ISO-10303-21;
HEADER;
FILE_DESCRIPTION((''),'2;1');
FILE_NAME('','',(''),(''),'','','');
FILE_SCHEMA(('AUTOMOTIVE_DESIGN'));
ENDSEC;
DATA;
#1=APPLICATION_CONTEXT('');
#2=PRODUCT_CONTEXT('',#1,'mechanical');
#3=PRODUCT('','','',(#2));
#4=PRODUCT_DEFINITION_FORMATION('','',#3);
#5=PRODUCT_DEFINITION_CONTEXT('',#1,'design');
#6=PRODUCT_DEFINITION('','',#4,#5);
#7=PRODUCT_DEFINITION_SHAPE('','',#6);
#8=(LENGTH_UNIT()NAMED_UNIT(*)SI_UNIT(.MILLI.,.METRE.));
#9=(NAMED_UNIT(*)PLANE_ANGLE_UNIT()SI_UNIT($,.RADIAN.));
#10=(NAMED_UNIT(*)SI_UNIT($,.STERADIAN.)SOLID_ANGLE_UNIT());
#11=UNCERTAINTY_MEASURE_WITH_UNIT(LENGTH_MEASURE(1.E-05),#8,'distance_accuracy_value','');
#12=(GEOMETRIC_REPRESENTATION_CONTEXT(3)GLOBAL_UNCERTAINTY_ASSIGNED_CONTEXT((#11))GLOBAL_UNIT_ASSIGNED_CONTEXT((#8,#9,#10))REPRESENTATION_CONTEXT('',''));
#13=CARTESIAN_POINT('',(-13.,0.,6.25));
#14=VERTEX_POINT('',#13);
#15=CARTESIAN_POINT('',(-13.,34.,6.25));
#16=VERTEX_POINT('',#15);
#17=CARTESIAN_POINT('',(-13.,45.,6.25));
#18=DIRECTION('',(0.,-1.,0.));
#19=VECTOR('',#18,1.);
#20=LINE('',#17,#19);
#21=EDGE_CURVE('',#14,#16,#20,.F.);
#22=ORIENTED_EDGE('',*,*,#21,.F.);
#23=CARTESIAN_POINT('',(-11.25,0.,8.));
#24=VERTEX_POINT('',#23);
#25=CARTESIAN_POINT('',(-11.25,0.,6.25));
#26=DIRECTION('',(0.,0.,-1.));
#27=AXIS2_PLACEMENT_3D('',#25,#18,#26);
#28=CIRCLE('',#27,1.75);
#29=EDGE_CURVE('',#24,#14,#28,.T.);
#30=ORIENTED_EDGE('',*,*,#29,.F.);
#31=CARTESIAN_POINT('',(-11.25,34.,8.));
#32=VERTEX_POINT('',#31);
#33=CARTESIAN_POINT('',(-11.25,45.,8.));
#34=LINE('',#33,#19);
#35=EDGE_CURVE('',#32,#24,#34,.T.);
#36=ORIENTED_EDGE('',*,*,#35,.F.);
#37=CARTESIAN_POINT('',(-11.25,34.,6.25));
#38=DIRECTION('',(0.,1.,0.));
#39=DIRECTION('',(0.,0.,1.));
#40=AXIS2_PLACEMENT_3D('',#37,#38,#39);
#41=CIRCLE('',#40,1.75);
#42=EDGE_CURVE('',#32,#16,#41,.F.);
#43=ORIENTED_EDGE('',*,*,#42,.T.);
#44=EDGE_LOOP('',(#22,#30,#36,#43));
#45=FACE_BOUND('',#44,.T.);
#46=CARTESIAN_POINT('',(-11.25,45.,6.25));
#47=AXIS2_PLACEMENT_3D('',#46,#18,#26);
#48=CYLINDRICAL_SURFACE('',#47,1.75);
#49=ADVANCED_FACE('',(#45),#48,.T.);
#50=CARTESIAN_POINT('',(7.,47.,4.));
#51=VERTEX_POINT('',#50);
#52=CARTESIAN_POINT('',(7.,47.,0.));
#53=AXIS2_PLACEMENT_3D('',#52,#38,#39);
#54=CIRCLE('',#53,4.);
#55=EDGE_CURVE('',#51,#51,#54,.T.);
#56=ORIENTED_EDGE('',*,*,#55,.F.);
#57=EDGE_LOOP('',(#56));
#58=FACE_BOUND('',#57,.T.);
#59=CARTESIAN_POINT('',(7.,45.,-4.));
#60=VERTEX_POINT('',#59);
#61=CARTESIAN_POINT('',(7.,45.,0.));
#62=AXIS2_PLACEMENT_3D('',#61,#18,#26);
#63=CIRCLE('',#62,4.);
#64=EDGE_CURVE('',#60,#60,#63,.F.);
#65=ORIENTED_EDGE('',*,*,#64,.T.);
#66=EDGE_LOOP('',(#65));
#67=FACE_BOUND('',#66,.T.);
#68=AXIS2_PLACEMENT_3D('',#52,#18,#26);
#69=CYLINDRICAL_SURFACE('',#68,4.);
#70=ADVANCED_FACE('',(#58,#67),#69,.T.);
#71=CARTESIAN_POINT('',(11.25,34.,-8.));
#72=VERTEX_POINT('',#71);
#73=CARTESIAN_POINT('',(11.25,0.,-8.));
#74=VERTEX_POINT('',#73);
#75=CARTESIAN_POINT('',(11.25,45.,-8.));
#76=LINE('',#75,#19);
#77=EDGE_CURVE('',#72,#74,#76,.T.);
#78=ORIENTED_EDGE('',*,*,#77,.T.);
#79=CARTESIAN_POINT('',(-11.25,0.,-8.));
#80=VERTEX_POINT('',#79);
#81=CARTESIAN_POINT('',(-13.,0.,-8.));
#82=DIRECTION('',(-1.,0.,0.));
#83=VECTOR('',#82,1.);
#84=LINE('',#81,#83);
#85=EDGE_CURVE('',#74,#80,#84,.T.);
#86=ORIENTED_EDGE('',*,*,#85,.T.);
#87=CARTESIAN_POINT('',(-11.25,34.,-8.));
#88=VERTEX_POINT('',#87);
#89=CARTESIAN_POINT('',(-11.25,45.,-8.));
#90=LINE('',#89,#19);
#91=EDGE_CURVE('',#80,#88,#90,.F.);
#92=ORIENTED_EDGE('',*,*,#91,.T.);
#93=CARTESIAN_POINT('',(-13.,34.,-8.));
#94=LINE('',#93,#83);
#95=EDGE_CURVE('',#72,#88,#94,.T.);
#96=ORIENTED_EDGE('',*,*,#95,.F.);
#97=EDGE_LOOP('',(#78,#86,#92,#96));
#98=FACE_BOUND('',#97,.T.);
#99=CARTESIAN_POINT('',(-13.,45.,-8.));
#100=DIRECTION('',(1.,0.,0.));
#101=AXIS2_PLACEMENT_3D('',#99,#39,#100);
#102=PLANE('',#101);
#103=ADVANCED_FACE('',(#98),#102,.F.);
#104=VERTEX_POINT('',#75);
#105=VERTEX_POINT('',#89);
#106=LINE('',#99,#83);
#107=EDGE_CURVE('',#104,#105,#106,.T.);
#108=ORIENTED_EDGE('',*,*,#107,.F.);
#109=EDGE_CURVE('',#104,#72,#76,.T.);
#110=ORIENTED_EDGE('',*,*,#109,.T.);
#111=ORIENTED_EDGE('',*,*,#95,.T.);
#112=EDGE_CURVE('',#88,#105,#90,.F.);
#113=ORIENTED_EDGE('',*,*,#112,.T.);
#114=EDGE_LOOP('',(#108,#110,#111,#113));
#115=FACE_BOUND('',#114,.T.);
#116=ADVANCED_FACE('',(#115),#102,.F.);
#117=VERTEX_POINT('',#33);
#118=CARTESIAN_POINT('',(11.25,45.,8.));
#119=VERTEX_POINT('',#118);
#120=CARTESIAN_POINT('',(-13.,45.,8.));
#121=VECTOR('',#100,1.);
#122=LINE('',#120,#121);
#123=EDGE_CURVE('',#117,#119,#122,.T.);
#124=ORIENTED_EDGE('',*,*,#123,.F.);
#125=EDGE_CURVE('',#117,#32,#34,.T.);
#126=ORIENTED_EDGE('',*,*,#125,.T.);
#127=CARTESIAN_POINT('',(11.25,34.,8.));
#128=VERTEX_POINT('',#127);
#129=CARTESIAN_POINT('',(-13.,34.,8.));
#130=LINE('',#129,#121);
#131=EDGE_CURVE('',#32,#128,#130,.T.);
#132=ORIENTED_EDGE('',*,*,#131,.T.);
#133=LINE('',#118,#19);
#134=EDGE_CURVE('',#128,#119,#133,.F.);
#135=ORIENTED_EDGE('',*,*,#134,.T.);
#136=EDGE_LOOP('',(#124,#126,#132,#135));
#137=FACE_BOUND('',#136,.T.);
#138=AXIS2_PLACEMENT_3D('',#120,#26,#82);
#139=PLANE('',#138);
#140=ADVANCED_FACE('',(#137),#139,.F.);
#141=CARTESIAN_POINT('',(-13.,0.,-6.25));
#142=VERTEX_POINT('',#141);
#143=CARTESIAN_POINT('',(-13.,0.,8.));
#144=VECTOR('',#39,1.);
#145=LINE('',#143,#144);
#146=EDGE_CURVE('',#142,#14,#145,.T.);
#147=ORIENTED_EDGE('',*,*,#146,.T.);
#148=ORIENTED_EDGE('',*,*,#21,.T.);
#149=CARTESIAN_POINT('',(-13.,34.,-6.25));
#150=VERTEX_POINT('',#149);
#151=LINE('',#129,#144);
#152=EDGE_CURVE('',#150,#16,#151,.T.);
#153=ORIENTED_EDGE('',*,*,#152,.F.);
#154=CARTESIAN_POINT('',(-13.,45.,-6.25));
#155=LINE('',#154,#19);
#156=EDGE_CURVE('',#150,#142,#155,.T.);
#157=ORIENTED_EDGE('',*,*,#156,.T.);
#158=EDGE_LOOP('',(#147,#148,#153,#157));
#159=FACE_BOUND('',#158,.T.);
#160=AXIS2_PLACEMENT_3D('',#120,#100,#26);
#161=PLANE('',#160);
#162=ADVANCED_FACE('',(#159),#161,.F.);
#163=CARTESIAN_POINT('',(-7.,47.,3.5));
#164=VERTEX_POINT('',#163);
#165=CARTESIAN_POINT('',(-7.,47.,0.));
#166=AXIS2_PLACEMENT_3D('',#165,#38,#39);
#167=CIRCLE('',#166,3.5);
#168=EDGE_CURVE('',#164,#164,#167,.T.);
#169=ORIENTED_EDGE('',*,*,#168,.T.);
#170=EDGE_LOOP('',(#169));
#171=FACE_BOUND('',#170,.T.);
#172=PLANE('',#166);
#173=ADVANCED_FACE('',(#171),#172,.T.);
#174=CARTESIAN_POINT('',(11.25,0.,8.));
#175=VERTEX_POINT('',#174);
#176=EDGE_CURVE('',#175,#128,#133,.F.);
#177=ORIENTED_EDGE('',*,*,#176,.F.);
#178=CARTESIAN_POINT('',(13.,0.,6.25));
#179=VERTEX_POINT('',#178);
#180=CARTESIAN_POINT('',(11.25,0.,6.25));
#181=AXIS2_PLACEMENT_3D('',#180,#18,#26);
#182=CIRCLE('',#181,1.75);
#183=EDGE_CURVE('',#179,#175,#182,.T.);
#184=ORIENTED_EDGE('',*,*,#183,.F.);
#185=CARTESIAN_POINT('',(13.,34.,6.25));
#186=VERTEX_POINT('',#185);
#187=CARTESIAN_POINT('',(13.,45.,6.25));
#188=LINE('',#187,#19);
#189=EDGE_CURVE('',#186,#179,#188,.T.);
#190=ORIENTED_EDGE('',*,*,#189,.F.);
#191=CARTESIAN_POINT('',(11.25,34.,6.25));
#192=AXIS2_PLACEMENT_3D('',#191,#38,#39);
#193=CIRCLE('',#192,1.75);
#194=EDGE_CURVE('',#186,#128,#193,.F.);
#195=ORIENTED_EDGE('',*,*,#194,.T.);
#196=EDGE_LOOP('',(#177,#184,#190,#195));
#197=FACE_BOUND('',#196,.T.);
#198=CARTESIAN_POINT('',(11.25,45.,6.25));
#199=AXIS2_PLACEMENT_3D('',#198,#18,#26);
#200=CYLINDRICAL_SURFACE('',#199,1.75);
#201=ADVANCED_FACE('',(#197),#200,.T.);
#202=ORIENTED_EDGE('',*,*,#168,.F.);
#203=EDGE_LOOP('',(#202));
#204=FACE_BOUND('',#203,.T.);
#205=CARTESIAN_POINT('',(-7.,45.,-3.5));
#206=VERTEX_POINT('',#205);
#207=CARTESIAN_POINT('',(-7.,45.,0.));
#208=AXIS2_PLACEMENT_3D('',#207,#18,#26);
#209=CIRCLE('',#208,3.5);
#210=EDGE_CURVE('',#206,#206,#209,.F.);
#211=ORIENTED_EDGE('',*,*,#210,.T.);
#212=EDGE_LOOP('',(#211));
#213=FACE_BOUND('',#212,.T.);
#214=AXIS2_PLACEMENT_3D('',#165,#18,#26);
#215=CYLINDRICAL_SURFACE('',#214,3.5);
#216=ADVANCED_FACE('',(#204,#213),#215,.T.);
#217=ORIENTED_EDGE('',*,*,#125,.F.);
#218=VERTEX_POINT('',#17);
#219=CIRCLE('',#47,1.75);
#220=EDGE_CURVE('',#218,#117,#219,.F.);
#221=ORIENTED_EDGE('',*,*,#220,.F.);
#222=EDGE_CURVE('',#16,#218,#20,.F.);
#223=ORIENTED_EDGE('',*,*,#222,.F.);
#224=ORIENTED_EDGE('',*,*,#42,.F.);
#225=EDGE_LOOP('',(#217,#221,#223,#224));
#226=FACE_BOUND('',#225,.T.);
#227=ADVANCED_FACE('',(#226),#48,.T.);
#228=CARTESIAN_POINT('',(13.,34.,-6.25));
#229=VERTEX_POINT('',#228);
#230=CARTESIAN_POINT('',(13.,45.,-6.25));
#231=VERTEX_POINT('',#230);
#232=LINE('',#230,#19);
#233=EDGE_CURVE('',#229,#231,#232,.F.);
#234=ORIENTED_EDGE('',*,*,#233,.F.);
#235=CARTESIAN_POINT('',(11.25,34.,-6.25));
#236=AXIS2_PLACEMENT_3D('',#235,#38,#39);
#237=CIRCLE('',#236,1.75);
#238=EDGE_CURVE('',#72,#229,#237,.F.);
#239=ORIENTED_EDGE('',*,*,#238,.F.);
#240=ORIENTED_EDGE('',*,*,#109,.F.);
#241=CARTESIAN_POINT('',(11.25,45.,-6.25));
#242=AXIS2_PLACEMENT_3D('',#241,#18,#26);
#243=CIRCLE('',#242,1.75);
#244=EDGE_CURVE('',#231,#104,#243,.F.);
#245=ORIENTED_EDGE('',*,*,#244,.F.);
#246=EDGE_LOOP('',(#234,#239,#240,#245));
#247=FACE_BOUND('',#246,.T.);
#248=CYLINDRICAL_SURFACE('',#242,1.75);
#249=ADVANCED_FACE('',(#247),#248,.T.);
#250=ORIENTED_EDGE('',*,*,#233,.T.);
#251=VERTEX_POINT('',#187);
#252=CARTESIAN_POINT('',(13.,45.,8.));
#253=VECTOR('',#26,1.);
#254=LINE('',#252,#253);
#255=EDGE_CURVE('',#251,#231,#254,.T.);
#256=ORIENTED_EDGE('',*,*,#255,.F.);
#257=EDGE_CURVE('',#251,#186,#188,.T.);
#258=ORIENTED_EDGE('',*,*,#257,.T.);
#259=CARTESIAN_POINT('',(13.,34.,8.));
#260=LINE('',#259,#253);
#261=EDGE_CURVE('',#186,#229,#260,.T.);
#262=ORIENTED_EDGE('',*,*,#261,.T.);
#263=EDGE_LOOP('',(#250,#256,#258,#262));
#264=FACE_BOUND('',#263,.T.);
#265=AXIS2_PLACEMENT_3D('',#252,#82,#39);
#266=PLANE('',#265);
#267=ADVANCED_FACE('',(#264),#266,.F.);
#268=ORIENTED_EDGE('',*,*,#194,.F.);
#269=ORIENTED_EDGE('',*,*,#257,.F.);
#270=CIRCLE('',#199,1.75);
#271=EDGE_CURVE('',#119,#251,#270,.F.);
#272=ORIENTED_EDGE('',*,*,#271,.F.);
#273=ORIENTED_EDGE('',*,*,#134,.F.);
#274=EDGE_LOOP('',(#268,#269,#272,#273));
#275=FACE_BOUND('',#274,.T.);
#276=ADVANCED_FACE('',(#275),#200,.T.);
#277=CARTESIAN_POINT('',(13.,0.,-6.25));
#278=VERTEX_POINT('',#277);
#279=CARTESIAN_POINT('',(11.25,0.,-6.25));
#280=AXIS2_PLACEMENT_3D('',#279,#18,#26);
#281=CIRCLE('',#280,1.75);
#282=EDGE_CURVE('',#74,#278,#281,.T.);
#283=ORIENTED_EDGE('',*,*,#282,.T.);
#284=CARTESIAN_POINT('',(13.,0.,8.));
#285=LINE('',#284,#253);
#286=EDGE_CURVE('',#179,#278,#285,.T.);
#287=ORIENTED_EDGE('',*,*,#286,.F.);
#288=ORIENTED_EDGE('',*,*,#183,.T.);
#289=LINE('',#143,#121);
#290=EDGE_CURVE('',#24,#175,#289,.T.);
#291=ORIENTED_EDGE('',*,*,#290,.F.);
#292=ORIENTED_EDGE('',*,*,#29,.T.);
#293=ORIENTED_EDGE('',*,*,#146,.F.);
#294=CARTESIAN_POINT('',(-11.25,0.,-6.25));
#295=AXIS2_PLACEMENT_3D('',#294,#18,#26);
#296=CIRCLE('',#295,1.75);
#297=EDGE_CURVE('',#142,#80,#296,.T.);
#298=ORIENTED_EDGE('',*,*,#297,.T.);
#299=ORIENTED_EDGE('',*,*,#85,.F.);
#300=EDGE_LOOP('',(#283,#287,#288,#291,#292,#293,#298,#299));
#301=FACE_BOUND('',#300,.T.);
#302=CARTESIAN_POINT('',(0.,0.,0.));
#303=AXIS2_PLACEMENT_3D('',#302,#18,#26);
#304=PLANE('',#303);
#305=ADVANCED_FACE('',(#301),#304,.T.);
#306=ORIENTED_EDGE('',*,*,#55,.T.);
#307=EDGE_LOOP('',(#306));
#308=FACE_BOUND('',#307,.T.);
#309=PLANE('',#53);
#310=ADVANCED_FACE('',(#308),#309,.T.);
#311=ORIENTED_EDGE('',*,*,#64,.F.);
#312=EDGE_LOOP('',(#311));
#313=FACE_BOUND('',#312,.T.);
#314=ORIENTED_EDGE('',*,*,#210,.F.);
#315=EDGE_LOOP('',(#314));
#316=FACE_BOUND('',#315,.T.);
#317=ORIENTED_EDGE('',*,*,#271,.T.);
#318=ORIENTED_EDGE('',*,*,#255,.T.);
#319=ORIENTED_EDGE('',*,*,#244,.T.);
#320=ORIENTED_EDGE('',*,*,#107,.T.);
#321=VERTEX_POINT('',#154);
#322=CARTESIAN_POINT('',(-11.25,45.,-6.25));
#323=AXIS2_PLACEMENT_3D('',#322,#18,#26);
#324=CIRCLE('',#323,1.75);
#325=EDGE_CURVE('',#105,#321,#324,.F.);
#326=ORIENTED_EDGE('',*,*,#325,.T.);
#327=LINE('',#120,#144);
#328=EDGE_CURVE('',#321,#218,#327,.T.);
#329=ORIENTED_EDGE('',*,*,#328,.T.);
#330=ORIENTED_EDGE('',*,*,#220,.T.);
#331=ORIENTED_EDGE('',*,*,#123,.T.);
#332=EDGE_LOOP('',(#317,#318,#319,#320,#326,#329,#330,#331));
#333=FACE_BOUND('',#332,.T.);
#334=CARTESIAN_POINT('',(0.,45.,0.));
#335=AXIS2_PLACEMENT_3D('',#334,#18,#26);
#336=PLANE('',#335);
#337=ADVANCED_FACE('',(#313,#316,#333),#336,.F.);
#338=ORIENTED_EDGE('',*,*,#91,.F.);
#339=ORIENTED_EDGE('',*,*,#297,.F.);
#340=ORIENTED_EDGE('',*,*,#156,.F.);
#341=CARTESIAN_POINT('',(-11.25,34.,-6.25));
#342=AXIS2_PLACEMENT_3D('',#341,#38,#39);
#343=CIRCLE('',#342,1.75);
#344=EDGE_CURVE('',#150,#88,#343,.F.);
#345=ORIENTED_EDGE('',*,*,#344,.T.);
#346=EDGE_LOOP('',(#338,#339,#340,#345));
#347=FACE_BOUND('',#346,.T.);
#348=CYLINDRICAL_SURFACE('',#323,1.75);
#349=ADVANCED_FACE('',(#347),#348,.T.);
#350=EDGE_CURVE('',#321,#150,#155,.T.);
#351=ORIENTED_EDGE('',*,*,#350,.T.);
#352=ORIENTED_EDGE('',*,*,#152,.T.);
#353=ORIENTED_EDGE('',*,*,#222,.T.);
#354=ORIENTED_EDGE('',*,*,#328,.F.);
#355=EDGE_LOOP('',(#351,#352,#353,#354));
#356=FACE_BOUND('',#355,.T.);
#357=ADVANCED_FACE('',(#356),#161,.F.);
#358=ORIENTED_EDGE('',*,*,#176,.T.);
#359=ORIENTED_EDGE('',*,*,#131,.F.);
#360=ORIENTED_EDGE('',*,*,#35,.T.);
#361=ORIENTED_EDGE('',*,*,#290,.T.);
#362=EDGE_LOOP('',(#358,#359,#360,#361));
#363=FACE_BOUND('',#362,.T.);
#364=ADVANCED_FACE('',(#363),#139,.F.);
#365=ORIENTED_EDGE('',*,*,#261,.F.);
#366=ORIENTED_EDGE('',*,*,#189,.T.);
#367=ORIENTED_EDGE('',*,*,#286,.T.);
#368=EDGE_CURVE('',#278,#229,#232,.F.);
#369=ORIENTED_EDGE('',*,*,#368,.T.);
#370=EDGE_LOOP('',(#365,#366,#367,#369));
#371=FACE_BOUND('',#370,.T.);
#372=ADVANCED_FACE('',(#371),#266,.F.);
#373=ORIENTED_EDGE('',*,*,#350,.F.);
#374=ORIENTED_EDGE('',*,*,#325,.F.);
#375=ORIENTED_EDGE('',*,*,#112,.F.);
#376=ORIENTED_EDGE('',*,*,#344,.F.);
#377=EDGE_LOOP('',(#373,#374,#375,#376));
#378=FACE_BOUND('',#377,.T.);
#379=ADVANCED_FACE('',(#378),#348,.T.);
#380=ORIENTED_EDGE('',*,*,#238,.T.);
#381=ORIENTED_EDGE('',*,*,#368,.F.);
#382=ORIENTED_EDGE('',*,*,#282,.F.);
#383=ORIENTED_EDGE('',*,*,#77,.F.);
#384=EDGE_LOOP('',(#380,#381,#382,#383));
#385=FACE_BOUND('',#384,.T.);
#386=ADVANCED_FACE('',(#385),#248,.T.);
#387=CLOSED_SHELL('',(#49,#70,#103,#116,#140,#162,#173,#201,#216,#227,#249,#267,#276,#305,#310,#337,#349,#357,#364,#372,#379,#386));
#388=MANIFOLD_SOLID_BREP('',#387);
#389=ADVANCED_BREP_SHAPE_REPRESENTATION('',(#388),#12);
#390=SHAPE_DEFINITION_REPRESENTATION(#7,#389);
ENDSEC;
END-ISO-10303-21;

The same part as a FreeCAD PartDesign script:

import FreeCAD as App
import Part
import Sketcher
Q = App.Units.Quantity


def edges_at(feature, points):
    """Names of the edges that pass closest to the given points."""
    edges = feature.Shape.Edges
    near = lambda p: min(range(len(edges)), key=lambda i: edges[i].distToShape(Part.Vertex(*p))[0])
    return sorted({f"Edge{near(p) + 1}" for p in points})

doc = App.newDocument("Part")
body = doc.addObject("PartDesign::Body", "Body")

# Sketch on XZ plane
sketch1 = doc.addObject("Sketcher::SketchObject", "Sketch")
body.addObject(sketch1)
sketch1.AttachmentSupport = (doc.XZ_Plane, [""])
sketch1.MapMode = "FlatFace"
sketch1.addGeometry(Part.LineSegment(App.Vector(-13, -8, 0), App.Vector(-13, 8, 0)), False)
sketch1.addGeometry(Part.LineSegment(App.Vector(-13, 8, 0), App.Vector(13, 8, 0)), False)
sketch1.addGeometry(Part.LineSegment(App.Vector(13, 8, 0), App.Vector(13, -8, 0)), False)
sketch1.addGeometry(Part.LineSegment(App.Vector(13, -8, 0), App.Vector(-13, -8, 0)), False)
sketch1.addConstraint(Sketcher.Constraint("Coincident", 0, 2, 1, 1))
sketch1.addConstraint(Sketcher.Constraint("Coincident", 1, 2, 2, 1))
sketch1.addConstraint(Sketcher.Constraint("Coincident", 2, 2, 3, 1))
sketch1.addConstraint(Sketcher.Constraint("Coincident", 3, 2, 0, 1))
sketch1.addConstraint(Sketcher.Constraint("Vertical", 0))
sketch1.addConstraint(Sketcher.Constraint("Horizontal", 1))
sketch1.addConstraint(Sketcher.Constraint("Vertical", 2))
sketch1.addConstraint(Sketcher.Constraint("Horizontal", 3))
sketch1.addConstraint(Sketcher.Constraint("Symmetric", 0, 2, 2, 2, -1, 1))
sketch1.addConstraint(Sketcher.Constraint("DistanceX", 1, 1, 1, 2, Q("26 mm")))
sketch1.addConstraint(Sketcher.Constraint("DistanceY", 0, 1, 0, 2, Q("16 mm")))
pad1 = doc.addObject("PartDesign::Pad", "Pad")
body.addObject(pad1)
pad1.Profile = sketch1
pad1.Length = 45
pad1.Reversed = True

# Sketch on XZ plane
sketch2 = doc.addObject("Sketcher::SketchObject", "Sketch001")
body.addObject(sketch2)
sketch2.AttachmentSupport = (doc.XZ_Plane, [""])
sketch2.MapMode = "FlatFace"
sketch2.AttachmentOffset = App.Placement(App.Vector(0, 0, -45), App.Rotation())
sketch2.addGeometry(Part.Circle(App.Vector(-7, 0, 0), App.Vector(0, 0, 1), 3.5), False)
sketch2.addGeometry(Part.Circle(App.Vector(7, 0, 0), App.Vector(0, 0, 1), 4), False)
sketch2.addConstraint(Sketcher.Constraint("Symmetric", 0, 3, 1, 3, -1, 1))
sketch2.addConstraint(Sketcher.Constraint("PointOnObject", 0, 3, -1))
sketch2.addConstraint(Sketcher.Constraint("Diameter", 0, Q("7 mm")))
sketch2.addConstraint(Sketcher.Constraint("Diameter", 1, Q("8 mm")))
sketch2.addConstraint(Sketcher.Constraint("DistanceX", 0, 3, -1, 1, Q("7 mm")))
pad2 = doc.addObject("PartDesign::Pad", "Pad001")
body.addObject(pad2)
pad2.Profile = sketch2
pad2.Length = 2
pad2.Reversed = True
doc.recompute()

fillet = doc.addObject("PartDesign::Fillet", "Fillet")
body.addObject(fillet)
fillet.Base = (pad2, edges_at(pad2, [
    (13, 22.5, 8),
    (-13, 22.5, 8),
    (-13, 22.5, -8),
    (13, 22.5, -8),
]))
fillet.Radius = 1.75

doc.recompute()
